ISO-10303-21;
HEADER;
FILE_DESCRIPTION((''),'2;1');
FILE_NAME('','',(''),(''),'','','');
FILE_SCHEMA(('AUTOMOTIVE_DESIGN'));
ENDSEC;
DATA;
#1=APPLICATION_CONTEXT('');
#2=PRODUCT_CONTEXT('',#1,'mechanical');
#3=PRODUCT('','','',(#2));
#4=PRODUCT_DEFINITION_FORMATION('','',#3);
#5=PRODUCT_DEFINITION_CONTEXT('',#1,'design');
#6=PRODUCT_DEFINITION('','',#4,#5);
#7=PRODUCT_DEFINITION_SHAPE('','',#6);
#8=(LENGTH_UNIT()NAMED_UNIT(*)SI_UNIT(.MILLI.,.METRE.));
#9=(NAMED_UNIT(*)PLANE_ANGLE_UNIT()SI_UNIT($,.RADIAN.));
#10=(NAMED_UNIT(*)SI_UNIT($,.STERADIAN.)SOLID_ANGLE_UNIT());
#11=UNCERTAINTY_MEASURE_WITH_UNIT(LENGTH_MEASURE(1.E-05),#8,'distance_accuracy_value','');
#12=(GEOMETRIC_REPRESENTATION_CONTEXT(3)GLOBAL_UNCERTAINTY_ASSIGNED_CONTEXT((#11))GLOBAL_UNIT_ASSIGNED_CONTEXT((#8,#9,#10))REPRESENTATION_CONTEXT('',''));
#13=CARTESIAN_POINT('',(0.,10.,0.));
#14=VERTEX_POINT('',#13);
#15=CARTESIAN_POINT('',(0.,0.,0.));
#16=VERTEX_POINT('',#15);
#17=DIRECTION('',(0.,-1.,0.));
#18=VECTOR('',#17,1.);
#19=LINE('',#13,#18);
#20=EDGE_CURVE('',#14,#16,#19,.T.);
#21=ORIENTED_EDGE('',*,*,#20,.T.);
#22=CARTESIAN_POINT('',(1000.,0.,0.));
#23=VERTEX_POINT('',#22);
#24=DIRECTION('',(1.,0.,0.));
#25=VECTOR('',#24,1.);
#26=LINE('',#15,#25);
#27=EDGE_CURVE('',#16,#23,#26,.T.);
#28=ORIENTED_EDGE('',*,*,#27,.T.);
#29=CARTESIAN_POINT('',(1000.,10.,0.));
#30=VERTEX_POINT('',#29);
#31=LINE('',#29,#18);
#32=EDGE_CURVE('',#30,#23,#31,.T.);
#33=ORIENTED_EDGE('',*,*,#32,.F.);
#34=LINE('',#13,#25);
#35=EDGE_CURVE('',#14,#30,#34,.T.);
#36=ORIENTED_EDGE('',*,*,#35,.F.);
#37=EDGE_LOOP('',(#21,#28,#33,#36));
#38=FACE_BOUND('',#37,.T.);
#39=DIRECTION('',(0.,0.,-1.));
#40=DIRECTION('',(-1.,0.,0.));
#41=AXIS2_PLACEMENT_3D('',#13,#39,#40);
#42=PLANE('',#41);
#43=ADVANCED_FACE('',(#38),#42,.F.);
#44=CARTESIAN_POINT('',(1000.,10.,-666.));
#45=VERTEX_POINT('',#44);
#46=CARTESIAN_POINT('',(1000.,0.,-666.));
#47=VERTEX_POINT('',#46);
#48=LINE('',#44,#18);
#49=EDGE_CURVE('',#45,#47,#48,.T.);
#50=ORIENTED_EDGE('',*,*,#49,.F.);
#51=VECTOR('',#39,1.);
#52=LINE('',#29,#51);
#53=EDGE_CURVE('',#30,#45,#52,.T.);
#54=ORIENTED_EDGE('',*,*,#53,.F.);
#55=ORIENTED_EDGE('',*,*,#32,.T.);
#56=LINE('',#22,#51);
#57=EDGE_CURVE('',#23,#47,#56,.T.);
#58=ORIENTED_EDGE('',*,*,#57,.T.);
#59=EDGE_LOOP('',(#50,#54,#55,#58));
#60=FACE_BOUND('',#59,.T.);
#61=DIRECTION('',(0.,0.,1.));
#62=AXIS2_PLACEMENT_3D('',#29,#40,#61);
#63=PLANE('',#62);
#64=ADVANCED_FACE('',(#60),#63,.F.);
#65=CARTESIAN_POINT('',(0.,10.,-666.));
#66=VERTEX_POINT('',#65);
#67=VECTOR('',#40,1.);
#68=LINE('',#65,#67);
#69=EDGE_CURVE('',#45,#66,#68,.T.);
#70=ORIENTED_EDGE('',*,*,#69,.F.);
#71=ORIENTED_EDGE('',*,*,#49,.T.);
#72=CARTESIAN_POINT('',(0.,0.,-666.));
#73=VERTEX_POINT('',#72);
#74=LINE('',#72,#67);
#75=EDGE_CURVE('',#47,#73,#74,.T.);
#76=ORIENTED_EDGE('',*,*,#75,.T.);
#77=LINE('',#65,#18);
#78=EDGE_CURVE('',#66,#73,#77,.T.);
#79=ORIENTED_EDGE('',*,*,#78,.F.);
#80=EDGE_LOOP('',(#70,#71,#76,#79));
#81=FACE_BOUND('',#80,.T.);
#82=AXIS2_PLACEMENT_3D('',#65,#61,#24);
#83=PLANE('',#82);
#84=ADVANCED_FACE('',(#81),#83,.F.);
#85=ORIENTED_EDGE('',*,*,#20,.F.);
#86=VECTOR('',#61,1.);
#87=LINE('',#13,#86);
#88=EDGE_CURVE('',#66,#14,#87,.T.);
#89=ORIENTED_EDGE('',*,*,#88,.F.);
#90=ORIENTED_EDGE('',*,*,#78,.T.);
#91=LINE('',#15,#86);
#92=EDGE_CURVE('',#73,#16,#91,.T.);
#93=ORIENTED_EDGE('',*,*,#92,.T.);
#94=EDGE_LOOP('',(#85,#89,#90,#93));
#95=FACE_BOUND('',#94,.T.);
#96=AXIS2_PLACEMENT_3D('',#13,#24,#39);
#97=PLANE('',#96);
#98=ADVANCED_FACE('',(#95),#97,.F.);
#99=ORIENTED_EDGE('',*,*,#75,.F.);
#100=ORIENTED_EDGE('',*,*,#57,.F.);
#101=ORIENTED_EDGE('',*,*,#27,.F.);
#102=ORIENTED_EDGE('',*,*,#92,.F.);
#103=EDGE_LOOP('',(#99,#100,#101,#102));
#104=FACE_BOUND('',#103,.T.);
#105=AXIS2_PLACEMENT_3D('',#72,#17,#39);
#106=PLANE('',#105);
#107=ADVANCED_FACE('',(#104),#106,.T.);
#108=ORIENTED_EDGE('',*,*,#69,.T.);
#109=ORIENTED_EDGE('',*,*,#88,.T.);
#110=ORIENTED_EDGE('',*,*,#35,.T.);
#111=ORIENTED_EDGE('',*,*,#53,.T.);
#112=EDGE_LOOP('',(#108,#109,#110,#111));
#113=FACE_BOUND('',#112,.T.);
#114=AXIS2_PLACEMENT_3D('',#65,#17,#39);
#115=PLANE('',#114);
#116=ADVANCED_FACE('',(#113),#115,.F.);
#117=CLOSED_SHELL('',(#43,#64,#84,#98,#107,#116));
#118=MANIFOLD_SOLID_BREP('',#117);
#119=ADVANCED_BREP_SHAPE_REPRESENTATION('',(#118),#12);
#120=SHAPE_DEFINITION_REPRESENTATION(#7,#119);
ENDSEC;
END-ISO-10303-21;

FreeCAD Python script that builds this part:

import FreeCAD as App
import Part
import Sketcher

V = App.Vector
Q = App.Units.Quantity


def add_polygon(sketch, points):
    """Adds a closed chain of lines whose ends are joined by coincident constraints."""
    first, n = sketch.GeometryCount, len(points)
    for a, b in zip(points, points[1:] + points[:1]):
        sketch.addGeometry(Part.LineSegment(App.Vector(*a, 0), App.Vector(*b, 0)), False)
    for i in range(n):
        sketch.addConstraint(Sketcher.Constraint("Coincident", first + i, 2, first + (i + 1) % n, 1))

doc = App.newDocument("Part")
params = doc.addObject("Spreadsheet::Sheet", "Params")
for row, (alias, value) in enumerate([
    ("sketch1_width", "1000 mm"),
    ("sketch1_height", "666 mm"),
    ("pad1_length", "10 mm"),
], start=1):
    params.set(f"A{row}", alias)
    params.set(f"B{row}", "=" + value)
    params.setAlias(f"B{row}", alias)

body = doc.addObject("PartDesign::Body", "Body")

# Sketch on XZ plane
sketch1 = body.newObject("Sketcher::SketchObject", "Sketch")
sketch1.AttachmentSupport = (doc.getObject("XZ_Plane"), [""])
sketch1.MapMode = "FlatFace"
add_polygon(sketch1, [(0, -666), (0, 0), (1000, 0), (1000, -666)])  # lines 0-3
sketch1.addConstraint(Sketcher.Constraint("Vertical", 0))
sketch1.addConstraint(Sketcher.Constraint("Horizontal", 1))
sketch1.addConstraint(Sketcher.Constraint("Vertical", 2))
sketch1.addConstraint(Sketcher.Constraint("Horizontal", 3))
sketch1.addConstraint(Sketcher.Constraint("Coincident", 0, 2, -1, 1))
sketch1.addConstraint(Sketcher.Constraint("DistanceX", 1, 1, 1, 2, Q("1000 mm")))
sketch1.addConstraint(Sketcher.Constraint("DistanceY", 0, 1, 0, 2, Q("666 mm")))
sketch1.setExpression("Constraints[9]", "Params.sketch1_width")
sketch1.setExpression("Constraints[10]", "Params.sketch1_height")
pad1 = body.newObject("PartDesign::Pad", "Pad")
pad1.Profile = sketch1
pad1.setExpression("Length", "Params.pad1_length")
pad1.Reversed = True

doc.recompute()
